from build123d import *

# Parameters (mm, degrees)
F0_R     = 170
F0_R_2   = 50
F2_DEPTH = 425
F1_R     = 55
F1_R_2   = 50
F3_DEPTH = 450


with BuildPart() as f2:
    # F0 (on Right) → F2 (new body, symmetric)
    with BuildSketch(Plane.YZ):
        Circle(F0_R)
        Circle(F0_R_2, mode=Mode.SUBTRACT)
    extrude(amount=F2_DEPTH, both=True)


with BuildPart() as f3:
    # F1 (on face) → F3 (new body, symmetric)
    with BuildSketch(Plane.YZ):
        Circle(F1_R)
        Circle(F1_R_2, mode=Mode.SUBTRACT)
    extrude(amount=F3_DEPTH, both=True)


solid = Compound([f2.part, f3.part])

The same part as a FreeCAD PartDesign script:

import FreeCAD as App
import Part
import Sketcher

V = App.Vector
Q = App.Units.Quantity

doc = App.newDocument("Part")
body = doc.addObject("PartDesign::Body", "Body")

# Sketch on YZ plane
sketch1 = body.newObject("Sketcher::SketchObject", "Sketch")
sketch1.AttachmentSupport = (doc.getObject("YZ_Plane"), [""])
sketch1.MapMode = "FlatFace"
sketch1.addGeometry([
    Part.Circle(V(0, 0, 0), V(0, 0, 1), 170),
    Part.Circle(V(0, 0, 0), V(0, 0, 1), 50),
], False)
sketch1.addConstraint([
    Sketcher.Constraint("Coincident", 0, 3, -1, 1),
    Sketcher.Constraint("Coincident", 1, 3, -1, 1),
    Sketcher.Constraint("Diameter", 0, Q("340 mm")),
    Sketcher.Constraint("Diameter", 1, Q("100 mm")),
])
pad1 = body.newObject("PartDesign::Pad", "Pad")
pad1.Profile = sketch1
pad1.Length = 850
pad1.Midplane = True
body2 = doc.addObject("PartDesign::Body", "Body001")

# Sketch on YZ plane
sketch2 = body2.newObject("Sketcher::SketchObject", "Sketch001")
sketch2.AttachmentSupport = (doc.getObject("YZ_Plane001"), [""])
sketch2.MapMode = "FlatFace"
sketch2.addGeometry([
    Part.Circle(V(0, 0, 0), V(0, 0, 1), 55),
    Part.Circle(V(0, 0, 0), V(0, 0, 1), 50),
], False)
sketch2.addConstraint([
    Sketcher.Constraint("Coincident", 0, 3, -1, 1),
    Sketcher.Constraint("Coincident", 1, 3, -1, 1),
    Sketcher.Constraint("Diameter", 0, Q("110 mm")),
    Sketcher.Constraint("Diameter", 1, Q("100 mm")),
])
pad2 = body2.newObject("PartDesign::Pad", "Pad001")
pad2.Profile = sketch2
pad2.Length = 900
pad2.Midplane = True

doc.recompute()
